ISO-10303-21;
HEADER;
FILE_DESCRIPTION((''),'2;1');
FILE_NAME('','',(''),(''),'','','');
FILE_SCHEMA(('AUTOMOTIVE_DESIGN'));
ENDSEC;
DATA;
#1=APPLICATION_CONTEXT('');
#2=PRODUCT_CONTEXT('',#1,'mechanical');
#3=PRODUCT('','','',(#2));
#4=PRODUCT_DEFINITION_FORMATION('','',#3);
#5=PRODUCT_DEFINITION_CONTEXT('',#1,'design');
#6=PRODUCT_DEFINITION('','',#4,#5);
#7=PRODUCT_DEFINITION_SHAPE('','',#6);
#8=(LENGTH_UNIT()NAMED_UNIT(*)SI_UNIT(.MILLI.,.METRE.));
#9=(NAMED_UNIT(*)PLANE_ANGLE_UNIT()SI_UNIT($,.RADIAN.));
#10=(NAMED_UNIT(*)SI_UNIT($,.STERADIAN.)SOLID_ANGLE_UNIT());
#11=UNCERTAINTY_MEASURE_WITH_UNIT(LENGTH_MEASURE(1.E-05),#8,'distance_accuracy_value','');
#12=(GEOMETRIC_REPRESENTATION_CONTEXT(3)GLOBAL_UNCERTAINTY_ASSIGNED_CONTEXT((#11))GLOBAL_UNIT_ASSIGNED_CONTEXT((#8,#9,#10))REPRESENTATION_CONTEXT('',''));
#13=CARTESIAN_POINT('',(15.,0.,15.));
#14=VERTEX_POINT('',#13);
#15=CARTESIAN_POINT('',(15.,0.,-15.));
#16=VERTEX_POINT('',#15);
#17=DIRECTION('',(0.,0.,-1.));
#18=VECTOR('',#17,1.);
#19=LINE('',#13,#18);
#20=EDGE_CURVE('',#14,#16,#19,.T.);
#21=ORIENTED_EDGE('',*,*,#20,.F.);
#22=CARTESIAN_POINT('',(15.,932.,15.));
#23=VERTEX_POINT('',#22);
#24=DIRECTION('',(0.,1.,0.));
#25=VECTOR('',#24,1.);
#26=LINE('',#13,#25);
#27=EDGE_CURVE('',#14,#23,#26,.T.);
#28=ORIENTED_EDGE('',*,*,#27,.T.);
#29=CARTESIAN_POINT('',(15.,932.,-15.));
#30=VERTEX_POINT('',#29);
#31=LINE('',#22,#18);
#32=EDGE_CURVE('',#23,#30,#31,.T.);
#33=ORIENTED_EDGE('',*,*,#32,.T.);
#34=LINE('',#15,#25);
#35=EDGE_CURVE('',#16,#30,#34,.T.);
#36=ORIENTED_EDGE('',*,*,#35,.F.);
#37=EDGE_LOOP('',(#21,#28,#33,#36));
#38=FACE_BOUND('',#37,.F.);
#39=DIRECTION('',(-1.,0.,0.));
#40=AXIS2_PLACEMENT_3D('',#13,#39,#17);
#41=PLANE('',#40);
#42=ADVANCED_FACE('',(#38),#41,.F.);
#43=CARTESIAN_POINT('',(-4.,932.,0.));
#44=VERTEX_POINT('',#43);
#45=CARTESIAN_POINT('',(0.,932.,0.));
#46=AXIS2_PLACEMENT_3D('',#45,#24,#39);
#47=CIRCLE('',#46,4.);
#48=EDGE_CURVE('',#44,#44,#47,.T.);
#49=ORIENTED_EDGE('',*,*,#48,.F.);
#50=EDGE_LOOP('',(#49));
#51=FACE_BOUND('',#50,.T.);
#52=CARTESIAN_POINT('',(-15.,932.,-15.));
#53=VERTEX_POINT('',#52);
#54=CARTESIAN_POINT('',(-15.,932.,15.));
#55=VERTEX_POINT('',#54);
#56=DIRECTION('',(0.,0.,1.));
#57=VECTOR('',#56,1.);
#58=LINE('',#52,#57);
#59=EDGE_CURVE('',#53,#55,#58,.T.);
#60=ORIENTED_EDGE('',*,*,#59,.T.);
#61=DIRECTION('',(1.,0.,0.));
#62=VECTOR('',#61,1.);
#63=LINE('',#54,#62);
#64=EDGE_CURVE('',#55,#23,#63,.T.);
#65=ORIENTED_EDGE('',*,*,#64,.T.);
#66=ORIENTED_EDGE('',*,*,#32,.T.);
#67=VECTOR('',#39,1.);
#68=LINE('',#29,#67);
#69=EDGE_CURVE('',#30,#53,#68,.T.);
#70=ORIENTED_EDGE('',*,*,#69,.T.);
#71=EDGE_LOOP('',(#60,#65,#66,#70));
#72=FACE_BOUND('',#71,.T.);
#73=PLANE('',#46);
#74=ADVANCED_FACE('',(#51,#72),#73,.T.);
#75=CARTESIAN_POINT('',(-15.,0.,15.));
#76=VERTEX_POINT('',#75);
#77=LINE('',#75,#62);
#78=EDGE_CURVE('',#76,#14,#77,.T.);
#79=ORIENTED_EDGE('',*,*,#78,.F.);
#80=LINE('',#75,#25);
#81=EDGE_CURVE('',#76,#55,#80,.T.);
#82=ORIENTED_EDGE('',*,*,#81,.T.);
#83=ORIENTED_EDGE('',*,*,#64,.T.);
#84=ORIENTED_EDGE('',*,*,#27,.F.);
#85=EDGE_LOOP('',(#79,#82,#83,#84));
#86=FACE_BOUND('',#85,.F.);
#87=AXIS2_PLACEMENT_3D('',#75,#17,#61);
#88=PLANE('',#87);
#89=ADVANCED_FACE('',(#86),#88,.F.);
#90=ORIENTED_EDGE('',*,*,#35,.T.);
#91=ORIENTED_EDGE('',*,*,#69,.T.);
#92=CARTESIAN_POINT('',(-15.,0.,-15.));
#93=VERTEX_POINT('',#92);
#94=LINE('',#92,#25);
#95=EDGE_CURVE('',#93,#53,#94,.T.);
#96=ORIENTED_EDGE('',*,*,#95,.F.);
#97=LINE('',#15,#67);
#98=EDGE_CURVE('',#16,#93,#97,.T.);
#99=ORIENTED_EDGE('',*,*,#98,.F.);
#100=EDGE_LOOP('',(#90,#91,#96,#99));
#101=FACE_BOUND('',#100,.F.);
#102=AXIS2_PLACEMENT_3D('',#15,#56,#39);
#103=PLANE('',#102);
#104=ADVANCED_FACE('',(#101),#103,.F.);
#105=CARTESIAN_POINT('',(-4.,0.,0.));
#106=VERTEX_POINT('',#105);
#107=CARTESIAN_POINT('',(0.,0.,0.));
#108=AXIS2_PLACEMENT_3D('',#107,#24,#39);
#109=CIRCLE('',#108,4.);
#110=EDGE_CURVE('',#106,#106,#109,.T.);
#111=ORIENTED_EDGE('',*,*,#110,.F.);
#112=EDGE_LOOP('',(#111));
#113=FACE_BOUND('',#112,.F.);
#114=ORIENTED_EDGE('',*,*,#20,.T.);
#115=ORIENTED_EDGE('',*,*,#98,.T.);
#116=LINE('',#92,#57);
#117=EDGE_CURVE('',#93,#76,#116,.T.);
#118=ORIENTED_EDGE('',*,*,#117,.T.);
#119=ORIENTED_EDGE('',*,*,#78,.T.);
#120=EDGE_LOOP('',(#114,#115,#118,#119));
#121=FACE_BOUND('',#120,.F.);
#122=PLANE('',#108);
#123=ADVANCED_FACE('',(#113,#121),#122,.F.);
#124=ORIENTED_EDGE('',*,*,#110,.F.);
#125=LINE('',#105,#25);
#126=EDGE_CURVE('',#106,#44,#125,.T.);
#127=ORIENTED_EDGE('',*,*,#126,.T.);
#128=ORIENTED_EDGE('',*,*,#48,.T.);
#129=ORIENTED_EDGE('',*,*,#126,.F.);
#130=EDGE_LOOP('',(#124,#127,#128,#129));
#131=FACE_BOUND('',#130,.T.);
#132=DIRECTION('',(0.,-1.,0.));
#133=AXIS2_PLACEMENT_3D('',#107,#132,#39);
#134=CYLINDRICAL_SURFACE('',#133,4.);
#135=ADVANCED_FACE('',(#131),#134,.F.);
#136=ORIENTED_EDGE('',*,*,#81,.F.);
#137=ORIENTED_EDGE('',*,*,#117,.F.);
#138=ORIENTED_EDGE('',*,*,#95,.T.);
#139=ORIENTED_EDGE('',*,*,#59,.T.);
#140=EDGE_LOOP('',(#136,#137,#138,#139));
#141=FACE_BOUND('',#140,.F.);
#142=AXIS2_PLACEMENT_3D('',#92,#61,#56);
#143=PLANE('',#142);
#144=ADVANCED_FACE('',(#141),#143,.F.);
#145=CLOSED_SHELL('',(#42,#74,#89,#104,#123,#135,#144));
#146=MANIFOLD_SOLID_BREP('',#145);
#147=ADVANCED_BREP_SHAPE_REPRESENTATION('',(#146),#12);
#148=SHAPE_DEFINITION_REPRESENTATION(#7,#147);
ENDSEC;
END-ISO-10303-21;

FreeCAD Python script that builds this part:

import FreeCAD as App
import Part
import Sketcher

doc = App.newDocument("Part")
body = doc.addObject("PartDesign::Body", "Body")

# Sketch on XZ plane
sketch1 = body.newObject("Sketcher::SketchObject", "Sketch")
sketch1.AttachmentSupport = (doc.getObject("XZ_Plane"), [""])
sketch1.MapMode = "FlatFace"
sketch1.addGeometry(Part.LineSegment(App.Vector(-15, -15, 0), App.Vector(-15, 15, 0)), False)
sketch1.addGeometry(Part.LineSegment(App.Vector(-15, 15, 0), App.Vector(15, 15, 0)), False)
sketch1.addGeometry(Part.LineSegment(App.Vector(15, 15, 0), App.Vector(15, -15, 0)), False)
sketch1.addGeometry(Part.LineSegment(App.Vector(15, -15, 0), App.Vector(-15, -15, 0)), False)
sketch1.addGeometry(Part.Circle(App.Vector(0, 0, 0), App.Vector(0, 0, 1), 4), False)
sketch1.addConstraint(Sketcher.Constraint("Coincident", 0, 2, 1, 1))
sketch1.addConstraint(Sketcher.Constraint("Coincident", 1, 2, 2, 1))
sketch1.addConstraint(Sketcher.Constraint("Coincident", 2, 2, 3, 1))
sketch1.addConstraint(Sketcher.Constraint("Coincident", 3, 2, 0, 1))
sketch1.addConstraint(Sketcher.Constraint("Vertical", 0))
sketch1.addConstraint(Sketcher.Constraint("Horizontal", 1))
sketch1.addConstraint(Sketcher.Constraint("Vertical", 2))
sketch1.addConstraint(Sketcher.Constraint("Horizontal", 3))
sketch1.addConstraint(Sketcher.Constraint("Coincident", 4, 3, -1, 1))
sketch1.addConstraint(Sketcher.Constraint("Symmetric", 0, 2, 2, 2, -1, 1))
sketch1.addConstraint(Sketcher.Constraint("Equal", 3, 0))
sketch1.addConstraint(Sketcher.Constraint("Diameter", 4, 8.0))
sketch1.addConstraint(Sketcher.Constraint("DistanceX", 1, 1, 1, 2, 30.0))
pad1 = body.newObject("PartDesign::Pad", "Pad")
pad1.Profile = sketch1
pad1.Length = 932
pad1.Reversed = True

doc.recompute()
